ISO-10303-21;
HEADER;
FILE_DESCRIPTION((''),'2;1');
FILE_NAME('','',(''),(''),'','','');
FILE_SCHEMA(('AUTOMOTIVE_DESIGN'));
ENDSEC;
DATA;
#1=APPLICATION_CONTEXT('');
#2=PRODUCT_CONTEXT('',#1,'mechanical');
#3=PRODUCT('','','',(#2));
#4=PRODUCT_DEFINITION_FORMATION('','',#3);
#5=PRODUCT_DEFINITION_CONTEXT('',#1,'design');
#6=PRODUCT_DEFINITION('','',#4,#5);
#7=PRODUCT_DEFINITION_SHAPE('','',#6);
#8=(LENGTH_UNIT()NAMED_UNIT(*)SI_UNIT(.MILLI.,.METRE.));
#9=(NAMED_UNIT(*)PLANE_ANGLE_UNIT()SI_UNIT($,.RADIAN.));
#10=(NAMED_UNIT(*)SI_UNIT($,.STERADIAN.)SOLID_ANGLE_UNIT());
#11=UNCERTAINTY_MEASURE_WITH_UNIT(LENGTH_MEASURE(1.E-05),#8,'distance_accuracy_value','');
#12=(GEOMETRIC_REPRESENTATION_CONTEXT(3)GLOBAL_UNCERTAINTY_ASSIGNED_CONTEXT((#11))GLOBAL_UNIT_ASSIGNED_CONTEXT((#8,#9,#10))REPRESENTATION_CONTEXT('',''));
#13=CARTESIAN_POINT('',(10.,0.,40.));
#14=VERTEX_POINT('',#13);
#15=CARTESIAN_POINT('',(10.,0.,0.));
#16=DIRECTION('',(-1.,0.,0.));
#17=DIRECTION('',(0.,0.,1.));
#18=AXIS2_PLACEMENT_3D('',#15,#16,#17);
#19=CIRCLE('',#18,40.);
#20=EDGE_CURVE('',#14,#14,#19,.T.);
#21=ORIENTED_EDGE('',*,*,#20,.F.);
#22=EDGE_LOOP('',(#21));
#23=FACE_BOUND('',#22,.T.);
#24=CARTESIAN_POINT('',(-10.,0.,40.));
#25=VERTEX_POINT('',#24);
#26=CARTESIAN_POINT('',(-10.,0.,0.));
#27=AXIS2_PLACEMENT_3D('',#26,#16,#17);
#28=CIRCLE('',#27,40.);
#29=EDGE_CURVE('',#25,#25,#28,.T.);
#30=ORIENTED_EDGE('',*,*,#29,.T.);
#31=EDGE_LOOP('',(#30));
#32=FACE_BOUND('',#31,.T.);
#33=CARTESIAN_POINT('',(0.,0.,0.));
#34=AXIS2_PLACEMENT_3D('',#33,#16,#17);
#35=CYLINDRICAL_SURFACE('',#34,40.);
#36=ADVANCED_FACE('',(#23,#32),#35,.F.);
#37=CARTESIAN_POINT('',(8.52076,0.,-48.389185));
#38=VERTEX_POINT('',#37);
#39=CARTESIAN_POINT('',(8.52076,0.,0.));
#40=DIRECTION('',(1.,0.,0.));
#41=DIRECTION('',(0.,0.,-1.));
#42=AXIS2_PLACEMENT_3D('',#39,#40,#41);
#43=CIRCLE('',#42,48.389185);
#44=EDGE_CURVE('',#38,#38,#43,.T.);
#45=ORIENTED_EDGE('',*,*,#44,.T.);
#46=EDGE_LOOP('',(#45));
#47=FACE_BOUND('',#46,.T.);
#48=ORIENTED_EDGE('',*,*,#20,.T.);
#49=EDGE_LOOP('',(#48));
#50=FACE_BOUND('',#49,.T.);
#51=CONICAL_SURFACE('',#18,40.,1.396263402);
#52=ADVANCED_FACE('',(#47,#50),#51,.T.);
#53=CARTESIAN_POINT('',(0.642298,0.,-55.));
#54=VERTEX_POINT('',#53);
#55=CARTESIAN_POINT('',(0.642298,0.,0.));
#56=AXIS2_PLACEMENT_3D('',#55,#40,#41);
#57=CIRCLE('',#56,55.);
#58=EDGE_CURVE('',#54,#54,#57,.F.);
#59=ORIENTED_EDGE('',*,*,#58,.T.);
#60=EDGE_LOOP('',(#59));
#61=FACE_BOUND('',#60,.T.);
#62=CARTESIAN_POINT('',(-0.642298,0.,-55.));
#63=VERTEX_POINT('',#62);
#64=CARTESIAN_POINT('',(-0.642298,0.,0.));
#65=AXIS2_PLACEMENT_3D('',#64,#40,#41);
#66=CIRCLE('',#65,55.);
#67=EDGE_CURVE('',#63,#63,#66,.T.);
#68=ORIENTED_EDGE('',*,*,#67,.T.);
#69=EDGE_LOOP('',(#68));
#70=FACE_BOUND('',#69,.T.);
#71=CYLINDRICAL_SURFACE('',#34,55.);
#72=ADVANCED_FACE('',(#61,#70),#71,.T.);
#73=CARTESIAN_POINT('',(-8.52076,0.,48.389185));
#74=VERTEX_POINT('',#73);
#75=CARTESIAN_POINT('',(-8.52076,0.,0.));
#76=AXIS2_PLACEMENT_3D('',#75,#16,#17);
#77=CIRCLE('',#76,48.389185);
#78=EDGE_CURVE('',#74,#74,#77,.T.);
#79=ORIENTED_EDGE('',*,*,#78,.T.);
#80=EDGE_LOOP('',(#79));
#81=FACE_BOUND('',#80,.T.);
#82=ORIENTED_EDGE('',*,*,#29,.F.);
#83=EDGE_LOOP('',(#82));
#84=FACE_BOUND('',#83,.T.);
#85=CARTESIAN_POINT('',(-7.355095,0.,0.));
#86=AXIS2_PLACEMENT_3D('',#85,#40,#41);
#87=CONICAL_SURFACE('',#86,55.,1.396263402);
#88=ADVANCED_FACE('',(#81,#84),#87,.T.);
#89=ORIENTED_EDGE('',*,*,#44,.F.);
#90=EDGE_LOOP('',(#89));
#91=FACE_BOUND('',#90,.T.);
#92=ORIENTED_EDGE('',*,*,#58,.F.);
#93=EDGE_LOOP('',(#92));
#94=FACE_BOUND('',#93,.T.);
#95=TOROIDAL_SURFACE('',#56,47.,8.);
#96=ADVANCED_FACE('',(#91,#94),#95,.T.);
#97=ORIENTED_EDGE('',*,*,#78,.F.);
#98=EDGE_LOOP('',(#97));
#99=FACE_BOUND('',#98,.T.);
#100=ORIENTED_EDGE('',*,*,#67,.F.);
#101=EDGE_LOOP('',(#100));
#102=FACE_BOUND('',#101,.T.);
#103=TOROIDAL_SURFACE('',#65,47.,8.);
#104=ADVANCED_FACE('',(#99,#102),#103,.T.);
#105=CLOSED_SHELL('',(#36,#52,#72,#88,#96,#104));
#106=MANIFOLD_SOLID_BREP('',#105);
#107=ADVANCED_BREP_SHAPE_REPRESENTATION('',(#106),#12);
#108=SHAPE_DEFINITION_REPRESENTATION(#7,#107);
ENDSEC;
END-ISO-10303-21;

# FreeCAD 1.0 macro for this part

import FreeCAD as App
import Part
import Sketcher

V = App.Vector
Q = App.Units.Quantity


def edges_at(feature, points):
    """Names of the edges that pass closest to the given points."""
    edges = feature.Shape.Edges
    near = lambda p: min(range(len(edges)), key=lambda i: edges[i].distToShape(Part.Vertex(*p))[0])
    return sorted({f"Edge{near(p) + 1}" for p in points})

doc = App.newDocument("Part")
body = doc.addObject("PartDesign::Body", "Body")

sketch1 = body.newObject("Sketcher::SketchObject", "Sketch")
sketch1.AttachmentSupport = (doc.getObject("XZ_Plane"), [""])
sketch1.MapMode = "FlatFace"
sketch1.addGeometry(Part.LineSegment(V(-10, -40, 0), V(10, -40, 0)), False)
sketch1.addGeometry(Part.LineSegment(V(10, -40, 0), V(7, -55, 0)), False)
sketch1.addGeometry(Part.LineSegment(V(7, -55, 0), V(-7, -55, 0)), False)
sketch1.addGeometry(Part.LineSegment(V(-7, -55, 0), V(-10, -40, 0)), False)
sketch1.addConstraint(Sketcher.Constraint("Coincident", 0, 2, 1, 1))
sketch1.addConstraint(Sketcher.Constraint("Coincident", 1, 2, 2, 1))
sketch1.addConstraint(Sketcher.Constraint("Coincident", 2, 2, 3, 1))
sketch1.addConstraint(Sketcher.Constraint("Coincident", 3, 2, 0, 1))
sketch1.addConstraint(Sketcher.Constraint("Horizontal", 0))
sketch1.addConstraint(Sketcher.Constraint("Horizontal", 2))
sketch1.addConstraint(Sketcher.Constraint("Equal", 1, 3))
sketch1.addConstraint(Sketcher.Constraint("DistanceX", 0, 1, 0, 2, 20.0))
sketch1.addConstraint(Sketcher.Constraint("Angle", 1, Q("-100 deg")))
sketch1.addConstraint(Sketcher.Constraint("DistanceX", -1, 1, 0, 2, 10.0))
sketch1.addConstraint(Sketcher.Constraint("DistanceY", 0, 2, -1, 1, 40.0))
sketch1.addConstraint(Sketcher.Constraint("DistanceY", 1, 2, -1, 1, 55.0))
revolution = body.newObject("PartDesign::Revolution", "Revolution")
revolution.Profile = sketch1
revolution.ReferenceAxis = (sketch1, ["H_Axis"])
revolution.Angle = 360
doc.recompute()

fillet = body.newObject("PartDesign::Fillet", "Fillet")
fillet.Base = (revolution, edges_at(revolution, [(-7.355, 0, 55), (7.355, 0, 55)]))
fillet.Radius = 8

doc.recompute()
